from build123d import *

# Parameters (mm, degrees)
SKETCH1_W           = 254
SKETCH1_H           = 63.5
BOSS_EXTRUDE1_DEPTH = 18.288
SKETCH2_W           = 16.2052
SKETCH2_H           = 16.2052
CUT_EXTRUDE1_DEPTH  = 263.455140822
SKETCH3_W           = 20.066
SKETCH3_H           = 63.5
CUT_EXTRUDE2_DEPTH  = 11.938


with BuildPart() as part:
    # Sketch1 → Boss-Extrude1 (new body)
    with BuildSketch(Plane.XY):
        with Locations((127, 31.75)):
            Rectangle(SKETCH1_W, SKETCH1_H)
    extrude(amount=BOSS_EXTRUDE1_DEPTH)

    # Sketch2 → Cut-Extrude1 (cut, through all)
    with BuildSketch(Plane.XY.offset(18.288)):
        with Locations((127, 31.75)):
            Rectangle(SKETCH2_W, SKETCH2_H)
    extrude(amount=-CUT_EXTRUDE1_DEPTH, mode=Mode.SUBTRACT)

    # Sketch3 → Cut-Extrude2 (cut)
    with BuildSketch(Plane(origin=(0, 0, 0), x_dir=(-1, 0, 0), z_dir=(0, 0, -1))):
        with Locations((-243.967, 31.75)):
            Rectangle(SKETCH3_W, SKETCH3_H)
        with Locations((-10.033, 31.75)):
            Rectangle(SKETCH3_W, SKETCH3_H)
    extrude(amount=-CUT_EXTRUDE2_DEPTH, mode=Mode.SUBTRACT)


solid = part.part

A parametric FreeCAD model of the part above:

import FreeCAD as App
import Part
import Sketcher

V = App.Vector
Q = App.Units.Quantity

doc = App.newDocument("Part")
body = doc.addObject("PartDesign::Body", "Body")

sketch1 = body.newObject("Sketcher::SketchObject", "Sketch")
sketch1.AttachmentSupport = (doc.getObject("XY_Plane"), [""])
sketch1.MapMode = "FlatFace"
sketch1.addGeometry([
    Part.LineSegment(V(0, 64, 0), V(0, 0, 0)),
    Part.LineSegment(V(0, 0, 0), V(254, 0, 0)),
    Part.LineSegment(V(254, 0, 0), V(254, 64, 0)),
    Part.LineSegment(V(254, 64, 0), V(0, 64, 0)),
], False)
sketch1.addConstraint([
    Sketcher.Constraint("Coincident", 0, 2, 1, 1),
    Sketcher.Constraint("Coincident", 1, 2, 2, 1),
    Sketcher.Constraint("Coincident", 2, 2, 3, 1),
    Sketcher.Constraint("Coincident", 3, 2, 0, 1),
    Sketcher.Constraint("Vertical", 0),
    Sketcher.Constraint("Horizontal", 1),
    Sketcher.Constraint("Vertical", 2),
    Sketcher.Constraint("Horizontal", 3),
    Sketcher.Constraint("Coincident", 0, 2, -1, 1),
    Sketcher.Constraint("DistanceX", 1, 1, 1, 2, Q("10 in")),
    Sketcher.Constraint("DistanceY", 0, 2, 0, 1, Q("2.5 in")),
])
pad1 = body.newObject("PartDesign::Pad", "Pad")
pad1.Profile = sketch1
pad1.Length = Q("0.72 in")

sketch2 = body.newObject("Sketcher::SketchObject", "Sketch001")
sketch2.AttachmentSupport = (doc.getObject("XY_Plane"), [""])
sketch2.MapMode = "FlatFace"
sketch2.AttachmentOffset = App.Placement(V(0, 0, 0.72 * 25.4), App.Rotation())
sketch2.addGeometry([
    Part.LineSegment(V(119, 40, 0), V(119, 24, 0)),
    Part.LineSegment(V(119, 24, 0), V(135, 24, 0)),
    Part.LineSegment(V(135, 24, 0), V(135, 40, 0)),
    Part.LineSegment(V(135, 40, 0), V(119, 40, 0)),
], False)
sketch2.addConstraint([
    Sketcher.Constraint("Coincident", 0, 2, 1, 1),
    Sketcher.Constraint("Coincident", 1, 2, 2, 1),
    Sketcher.Constraint("Coincident", 2, 2, 3, 1),
    Sketcher.Constraint("Coincident", 3, 2, 0, 1),
    Sketcher.Constraint("Vertical", 0),
    Sketcher.Constraint("Horizontal", 1),
    Sketcher.Constraint("Vertical", 2),
    Sketcher.Constraint("Horizontal", 3),
    Sketcher.Constraint("Equal", 3, 0),
    Sketcher.Constraint("DistanceX", 1, 1, 1, 2, Q("0.638 in")),
    Sketcher.Constraint("DistanceX", -1, 1, 0, 2, Q("4.681 in")),
    Sketcher.Constraint("DistanceY", -1, 1, 0, 2, Q("0.931 in")),
])
pocket1 = body.newObject("PartDesign::Pocket", "Pocket")
pocket1.Profile = sketch2
pocket1.Type = "ThroughAll"

sketch3 = body.newObject("Sketcher::SketchObject", "Sketch002")
sketch3.AttachmentSupport = (doc.getObject("XY_Plane"), [""])
sketch3.MapMode = "FlatFace"
sketch3.addGeometry([
    Part.LineSegment(V(254, 64, 0), V(254, 0, 0)),
    Part.LineSegment(V(254, 0, 0), V(234, 0, 0)),
    Part.LineSegment(V(234, 0, 0), V(234, 64, 0)),
    Part.LineSegment(V(234, 64, 0), V(254, 64, 0)),
    Part.LineSegment(V(20, 64, 0), V(20, 0, 0)),
    Part.LineSegment(V(20, 0, 0), V(0, 0, 0)),
    Part.LineSegment(V(0, 0, 0), V(0, 64, 0)),
    Part.LineSegment(V(0, 64, 0), V(20, 64, 0)),
], False)
sketch3.addConstraint([
    Sketcher.Constraint("Coincident", 0, 2, 1, 1),
    Sketcher.Constraint("Coincident", 1, 2, 2, 1),
    Sketcher.Constraint("Coincident", 2, 2, 3, 1),
    Sketcher.Constraint("Coincident", 3, 2, 0, 1),
    Sketcher.Constraint("Coincident", 4, 2, 5, 1),
    Sketcher.Constraint("Coincident", 5, 2, 6, 1),
    Sketcher.Constraint("Coincident", 6, 2, 7, 1),
    Sketcher.Constraint("Coincident", 7, 2, 4, 1),
    Sketcher.Constraint("Vertical", 0),
    Sketcher.Constraint("Horizontal", 1),
    Sketcher.Constraint("Vertical", 2),
    Sketcher.Constraint("Horizontal", 3),
    Sketcher.Constraint("Vertical", 4),
    Sketcher.Constraint("Horizontal", 5),
    Sketcher.Constraint("Vertical", 6),
    Sketcher.Constraint("Horizontal", 7),
    Sketcher.Constraint("Coincident", 5, 2, -1, 1),
    Sketcher.Constraint("PointOnObject", 0, 2, -1),
    Sketcher.Constraint("Horizontal", 3, 2, 6, 2),
    Sketcher.Constraint("Equal", 3, 5),
    Sketcher.Constraint("DistanceY", 0, 2, 0, 1, Q("2.5 in")),
    Sketcher.Constraint("DistanceX", -1, 1, 0, 2, Q("10 in")),
    Sketcher.Constraint("DistanceX", 1, 2, 1, 1, Q("0.79 in")),
])
pocket2 = body.newObject("PartDesign::Pocket", "Pocket001")
pocket2.Profile = sketch3
pocket2.Length = Q("0.47 in")
pocket2.Reversed = True

doc.recompute()
